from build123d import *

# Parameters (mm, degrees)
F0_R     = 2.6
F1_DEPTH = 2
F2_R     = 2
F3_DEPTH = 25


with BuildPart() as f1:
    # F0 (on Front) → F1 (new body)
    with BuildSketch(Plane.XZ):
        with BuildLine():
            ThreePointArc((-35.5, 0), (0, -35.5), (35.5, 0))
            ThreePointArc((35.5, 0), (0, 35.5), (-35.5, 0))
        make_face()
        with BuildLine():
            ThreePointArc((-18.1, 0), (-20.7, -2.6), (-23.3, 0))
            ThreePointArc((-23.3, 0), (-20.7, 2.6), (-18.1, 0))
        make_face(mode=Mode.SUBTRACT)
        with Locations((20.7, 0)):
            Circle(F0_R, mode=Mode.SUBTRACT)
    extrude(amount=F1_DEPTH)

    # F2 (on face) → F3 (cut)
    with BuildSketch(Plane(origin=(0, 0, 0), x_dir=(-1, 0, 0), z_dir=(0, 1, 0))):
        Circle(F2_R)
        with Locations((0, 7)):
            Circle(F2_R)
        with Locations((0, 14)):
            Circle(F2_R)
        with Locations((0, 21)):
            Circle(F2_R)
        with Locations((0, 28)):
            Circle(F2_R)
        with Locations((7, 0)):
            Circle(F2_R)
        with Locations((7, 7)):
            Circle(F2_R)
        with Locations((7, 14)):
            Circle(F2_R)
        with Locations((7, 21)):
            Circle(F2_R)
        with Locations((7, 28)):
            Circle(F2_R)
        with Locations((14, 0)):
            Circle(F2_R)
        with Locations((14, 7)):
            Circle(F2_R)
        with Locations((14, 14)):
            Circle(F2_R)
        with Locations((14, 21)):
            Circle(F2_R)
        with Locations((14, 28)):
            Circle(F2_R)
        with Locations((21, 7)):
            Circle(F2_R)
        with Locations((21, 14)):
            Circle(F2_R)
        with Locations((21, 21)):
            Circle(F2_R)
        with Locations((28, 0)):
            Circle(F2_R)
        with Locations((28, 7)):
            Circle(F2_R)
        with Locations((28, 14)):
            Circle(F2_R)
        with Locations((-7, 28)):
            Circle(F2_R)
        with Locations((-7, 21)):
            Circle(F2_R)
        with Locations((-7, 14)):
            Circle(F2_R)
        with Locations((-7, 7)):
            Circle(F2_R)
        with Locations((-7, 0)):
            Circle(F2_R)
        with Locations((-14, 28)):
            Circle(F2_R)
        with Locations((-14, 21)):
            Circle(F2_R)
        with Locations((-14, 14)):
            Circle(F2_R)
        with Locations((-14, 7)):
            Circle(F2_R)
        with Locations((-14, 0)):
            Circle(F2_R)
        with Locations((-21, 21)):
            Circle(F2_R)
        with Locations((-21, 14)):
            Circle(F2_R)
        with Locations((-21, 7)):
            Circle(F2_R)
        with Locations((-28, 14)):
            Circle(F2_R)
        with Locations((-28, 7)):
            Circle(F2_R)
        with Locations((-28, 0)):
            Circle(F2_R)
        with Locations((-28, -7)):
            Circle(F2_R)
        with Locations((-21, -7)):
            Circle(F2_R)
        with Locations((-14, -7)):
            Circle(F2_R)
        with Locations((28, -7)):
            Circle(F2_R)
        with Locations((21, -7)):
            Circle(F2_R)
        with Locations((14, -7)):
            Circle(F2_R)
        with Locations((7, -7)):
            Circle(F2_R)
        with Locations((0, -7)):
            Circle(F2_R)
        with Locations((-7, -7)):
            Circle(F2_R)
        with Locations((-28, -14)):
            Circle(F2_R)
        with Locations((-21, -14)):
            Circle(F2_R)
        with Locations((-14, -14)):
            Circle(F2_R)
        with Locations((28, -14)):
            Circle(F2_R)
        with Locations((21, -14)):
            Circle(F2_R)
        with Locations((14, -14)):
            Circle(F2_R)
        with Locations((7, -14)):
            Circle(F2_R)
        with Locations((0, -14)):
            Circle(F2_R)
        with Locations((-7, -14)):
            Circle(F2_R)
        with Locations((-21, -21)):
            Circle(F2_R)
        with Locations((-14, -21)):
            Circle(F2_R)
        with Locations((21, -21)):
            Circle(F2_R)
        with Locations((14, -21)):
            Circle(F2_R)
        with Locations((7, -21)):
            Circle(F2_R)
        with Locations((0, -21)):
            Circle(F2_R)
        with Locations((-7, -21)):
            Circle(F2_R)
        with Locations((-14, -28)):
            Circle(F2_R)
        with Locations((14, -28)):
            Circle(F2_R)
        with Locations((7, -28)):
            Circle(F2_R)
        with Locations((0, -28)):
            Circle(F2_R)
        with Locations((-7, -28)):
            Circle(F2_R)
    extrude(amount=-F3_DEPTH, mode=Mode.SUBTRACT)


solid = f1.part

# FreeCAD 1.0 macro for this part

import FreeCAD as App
import Part
import Sketcher
from FreeCAD import Vector
Q = App.Units.Quantity

doc = App.newDocument("Part")
params = doc.addObject("Spreadsheet::Sheet", "Params")
for row, (alias, value) in enumerate([
    ("sketch1_diameter", "71 mm"),
    ("sketch1_diameter2", "5.2 mm"),
    ("pad1_length", "2 mm"),
    ("sketch2_diameter", "4 mm"),
    ("pocket1_length", "25 mm"),
], start=1):
    params.set(f"A{row}", alias)
    params.set(f"B{row}", "=" + value)
    params.setAlias(f"B{row}", alias)

body = doc.addObject("PartDesign::Body", "Body")

sketch1 = body.newObject("Sketcher::SketchObject", "Sketch")
sketch1.AttachmentSupport = (doc.getObject("XZ_Plane"), [""])
sketch1.MapMode = "FlatFace"
sketch1.addGeometry([
    Part.Circle(Vector(0, 0, 0), Vector(0, 0, 1), 35.5),
    Part.Circle(Vector(-20.7, 0, 0), Vector(0, 0, 1), 2.6),
    Part.Circle(Vector(20.7, 0, 0), Vector(0, 0, 1), 2.6),
], False)
sketch1.addConstraint([
    Sketcher.Constraint("Coincident", 0, 3, -1, 1),
    Sketcher.Constraint("Equal", 1, 2),
    Sketcher.Constraint("Symmetric", 1, 3, 2, 3, -1, 1),
    Sketcher.Constraint("PointOnObject", 1, 3, -1),
    Sketcher.Constraint("Diameter", 0, Q("71 mm")),
    Sketcher.Constraint("Diameter", 1, Q("5.2 mm")),
    Sketcher.Constraint("DistanceX", 1, 3, -1, 1, Q("20.7 mm")),
])
sketch1.setExpression("Constraints[4]", "Params.sketch1_diameter")
sketch1.setExpression("Constraints[5]", "Params.sketch1_diameter2")
pad1 = body.newObject("PartDesign::Pad", "Pad")
pad1.Profile = sketch1
pad1.setExpression("Length", "Params.pad1_length")

sketch2 = body.newObject("Sketcher::SketchObject", "Sketch001")
sketch2.AttachmentSupport = (doc.getObject("XZ_Plane"), [""])
sketch2.MapMode = "FlatFace"
sketch2.addGeometry([
    Part.Circle(Vector(0, 0, 0), Vector(0, 0, 1), 2),
    Part.Circle(Vector(0, 7, 0), Vector(0, 0, 1), 2),
    Part.Circle(Vector(0, 14, 0), Vector(0, 0, 1), 2),
    Part.Circle(Vector(0, 21, 0), Vector(0, 0, 1), 2),
    Part.Circle(Vector(0, 28, 0), Vector(0, 0, 1), 2),
    Part.Circle(Vector(-7, 0, 0), Vector(0, 0, 1), 2),
    Part.Circle(Vector(-7, 7, 0), Vector(0, 0, 1), 2),
    Part.Circle(Vector(-7, 14, 0), Vector(0, 0, 1), 2),
    Part.Circle(Vector(-7, 21, 0), Vector(0, 0, 1), 2),
    Part.Circle(Vector(-7, 28, 0), Vector(0, 0, 1), 2),
    Part.Circle(Vector(-14, 0, 0), Vector(0, 0, 1), 2),
    Part.Circle(Vector(-14, 7, 0), Vector(0, 0, 1), 2),
    Part.Circle(Vector(-14, 14, 0), Vector(0, 0, 1), 2),
    Part.Circle(Vector(-14, 21, 0), Vector(0, 0, 1), 2),
    Part.Circle(Vector(-14, 28, 0), Vector(0, 0, 1), 2),
    Part.Circle(Vector(-21, 7, 0), Vector(0, 0, 1), 2),
    Part.Circle(Vector(-21, 14, 0), Vector(0, 0, 1), 2),
    Part.Circle(Vector(-21, 21, 0), Vector(0, 0, 1), 2),
    Part.Circle(Vector(-28, 0, 0), Vector(0, 0, 1), 2),
    Part.Circle(Vector(-28, 7, 0), Vector(0, 0, 1), 2),
    Part.Circle(Vector(-28, 14, 0), Vector(0, 0, 1), 2),
    Part.Circle(Vector(7, 28, 0), Vector(0, 0, 1), 2),
    Part.Circle(Vector(7, 21, 0), Vector(0, 0, 1), 2),
    Part.Circle(Vector(7, 14, 0), Vector(0, 0, 1), 2),
    Part.Circle(Vector(7, 7, 0), Vector(0, 0, 1), 2),
    Part.Circle(Vector(7, 0, 0), Vector(0, 0, 1), 2),
    Part.Circle(Vector(14, 28, 0), Vector(0, 0, 1), 2),
    Part.Circle(Vector(14, 21, 0), Vector(0, 0, 1), 2),
    Part.Circle(Vector(14, 14, 0), Vector(0, 0, 1), 2),
    Part.Circle(Vector(14, 7, 0), Vector(0, 0, 1), 2),
    Part.Circle(Vector(14, 0, 0), Vector(0, 0, 1), 2),
    Part.Circle(Vector(21, 21, 0), Vector(0, 0, 1), 2),
    Part.Circle(Vector(21, 14, 0), Vector(0, 0, 1), 2),
    Part.Circle(Vector(21, 7, 0), Vector(0, 0, 1), 2),
    Part.Circle(Vector(28, 14, 0), Vector(0, 0, 1), 2),
    Part.Circle(Vector(28, 7, 0), Vector(0, 0, 1), 2),
    Part.Circle(Vector(28, 0, 0), Vector(0, 0, 1), 2),
    Part.Circle(Vector(28, -7, 0), Vector(0, 0, 1), 2),
    Part.Circle(Vector(21, -7, 0), Vector(0, 0, 1), 2),
    Part.Circle(Vector(14, -7, 0), Vector(0, 0, 1), 2),
    Part.Circle(Vector(-28, -7, 0), Vector(0, 0, 1), 2),
    Part.Circle(Vector(-21, -7, 0), Vector(0, 0, 1), 2),
    Part.Circle(Vector(-14, -7, 0), Vector(0, 0, 1), 2),
    Part.Circle(Vector(-7, -7, 0), Vector(0, 0, 1), 2),
    Part.Circle(Vector(0, -7, 0), Vector(0, 0, 1), 2),
    Part.Circle(Vector(7, -7, 0), Vector(0, 0, 1), 2),
    Part.Circle(Vector(28, -14, 0), Vector(0, 0, 1), 2),
    Part.Circle(Vector(21, -14, 0), Vector(0, 0, 1), 2),
    Part.Circle(Vector(14, -14, 0), Vector(0, 0, 1), 2),
    Part.Circle(Vector(-28, -14, 0), Vector(0, 0, 1), 2),
    Part.Circle(Vector(-21, -14, 0), Vector(0, 0, 1), 2),
    Part.Circle(Vector(-14, -14, 0), Vector(0, 0, 1), 2),
    Part.Circle(Vector(-7, -14, 0), Vector(0, 0, 1), 2),
    Part.Circle(Vector(0, -14, 0), Vector(0, 0, 1), 2),
    Part.Circle(Vector(7, -14, 0), Vector(0, 0, 1), 2),
    Part.Circle(Vector(21, -21, 0), Vector(0, 0, 1), 2),
    Part.Circle(Vector(14, -21, 0), Vector(0, 0, 1), 2),
    Part.Circle(Vector(-21, -21, 0), Vector(0, 0, 1), 2),
    Part.Circle(Vector(-14, -21, 0), Vector(0, 0, 1), 2),
    Part.Circle(Vector(-7, -21, 0), Vector(0, 0, 1), 2),
    Part.Circle(Vector(0, -21, 0), Vector(0, 0, 1), 2),
    Part.Circle(Vector(7, -21, 0), Vector(0, 0, 1), 2),
    Part.Circle(Vector(14, -28, 0), Vector(0, 0, 1), 2),
    Part.Circle(Vector(-14, -28, 0), Vector(0, 0, 1), 2),
    Part.Circle(Vector(-7, -28, 0), Vector(0, 0, 1), 2),
    Part.Circle(Vector(0, -28, 0), Vector(0, 0, 1), 2),
    Part.Circle(Vector(7, -28, 0), Vector(0, 0, 1), 2),
], False)
sketch2.addConstraint([
    Sketcher.Constraint("Coincident", 0, 3, -1, 1),
    Sketcher.Constraint("Equal", 0, 1),
    Sketcher.Constraint("Equal", 1, 2),
    Sketcher.Constraint("Equal", 2, 3),
    Sketcher.Constraint("Equal", 3, 4),
    Sketcher.Constraint("Equal", 4, 5),
    Sketcher.Constraint("Equal", 5, 6),
    Sketcher.Constraint("Equal", 6, 7),
    Sketcher.Constraint("Equal", 7, 8),
    Sketcher.Constraint("Equal", 8, 9),
    Sketcher.Constraint("Equal", 9, 10),
    Sketcher.Constraint("Equal", 10, 11),
    Sketcher.Constraint("Equal", 11, 12),
    Sketcher.Constraint("Equal", 12, 13),
    Sketcher.Constraint("Equal", 13, 14),
    Sketcher.Constraint("Equal", 14, 15),
    Sketcher.Constraint("Equal", 15, 16),
    Sketcher.Constraint("Equal", 16, 17),
    Sketcher.Constraint("Equal", 17, 18),
    Sketcher.Constraint("Equal", 18, 19),
    Sketcher.Constraint("Equal", 19, 20),
    Sketcher.Constraint("Equal", 20, 21),
    Sketcher.Constraint("Equal", 21, 22),
    Sketcher.Constraint("Equal", 22, 23),
    Sketcher.Constraint("Equal", 23, 24),
    Sketcher.Constraint("Equal", 24, 25),
    Sketcher.Constraint("Equal", 25, 26),
    Sketcher.Constraint("Equal", 26, 27),
    Sketcher.Constraint("Equal", 27, 28),
    Sketcher.Constraint("Equal", 28, 29),
    Sketcher.Constraint("Equal", 29, 30),
    Sketcher.Constraint("Equal", 30, 31),
    Sketcher.Constraint("Equal", 31, 32),
    Sketcher.Constraint("Equal", 32, 33),
    Sketcher.Constraint("Equal", 33, 34),
    Sketcher.Constraint("Equal", 34, 35),
    Sketcher.Constraint("Equal", 35, 36),
    Sketcher.Constraint("Equal", 36, 37),
    Sketcher.Constraint("Equal", 37, 38),
    Sketcher.Constraint("Equal", 38, 39),
    Sketcher.Constraint("Equal", 39, 40),
    Sketcher.Constraint("Equal", 40, 41),
    Sketcher.Constraint("Equal", 41, 42),
    Sketcher.Constraint("Equal", 42, 43),
    Sketcher.Constraint("Equal", 43, 44),
    Sketcher.Constraint("Equal", 44, 45),
    Sketcher.Constraint("Equal", 45, 46),
    Sketcher.Constraint("Equal", 46, 47),
    Sketcher.Constraint("Equal", 47, 48),
    Sketcher.Constraint("Equal", 48, 49),
    Sketcher.Constraint("Equal", 49, 50),
    Sketcher.Constraint("Equal", 50, 51),
    Sketcher.Constraint("Equal", 51, 52),
    Sketcher.Constraint("Equal", 52, 53),
    Sketcher.Constraint("Equal", 53, 54),
    Sketcher.Constraint("Equal", 54, 55),
    Sketcher.Constraint("Equal", 55, 56),
    Sketcher.Constraint("Equal", 56, 57),
    Sketcher.Constraint("Equal", 57, 58),
    Sketcher.Constraint("Equal", 58, 59),
    Sketcher.Constraint("Equal", 59, 60),
    Sketcher.Constraint("Equal", 60, 61),
    Sketcher.Constraint("Equal", 61, 62),
    Sketcher.Constraint("Equal", 62, 63),
    Sketcher.Constraint("Equal", 63, 64),
    Sketcher.Constraint("Equal", 64, 65),
    Sketcher.Constraint("Equal", 65, 66),
    Sketcher.Constraint("Symmetric", 5, 3, 25, 3, -1, 1),
    Sketcher.Constraint("Symmetric", 10, 3, 30, 3, -1, 1),
    Sketcher.Constraint("Symmetric", 18, 3, 36, 3, -1, 1),
    Sketcher.Constraint("Symmetric", 19, 3, 37, 3, -1, 1),
    Sketcher.Constraint("Symmetric", 15, 3, 38, 3, -1, 1),
    Sketcher.Constraint("Symmetric", 11, 3, 39, 3, -1, 1),
    Sketcher.Constraint("Symmetric", 35, 3, 40, 3, -1, 1),
    Sketcher.Constraint("Symmetric", 33, 3, 41, 3, -1, 1),
    Sketcher.Constraint("Symmetric", 29, 3, 42, 3, -1, 1),
    Sketcher.Constraint("Symmetric", 24, 3, 43, 3, -1, 1),
    Sketcher.Constraint("Symmetric", 1, 3, 44, 3, -1, 1),
    Sketcher.Constraint("Symmetric", 6, 3, 45, 3, -1, 1),
    Sketcher.Constraint("Symmetric", 20, 3, 46, 3, -1, 1),
    Sketcher.Constraint("Symmetric", 16, 3, 47, 3, -1, 1),
    Sketcher.Constraint("Symmetric", 12, 3, 48, 3, -1, 1),
    Sketcher.Constraint("Symmetric", 34, 3, 49, 3, -1, 1),
    Sketcher.Constraint("Symmetric", 32, 3, 50, 3, -1, 1),
    Sketcher.Constraint("Symmetric", 28, 3, 51, 3, -1, 1),
    Sketcher.Constraint("Symmetric", 23, 3, 52, 3, -1, 1),
    Sketcher.Constraint("Symmetric", 2, 3, 53, 3, -1, 1),
    Sketcher.Constraint("Symmetric", 7, 3, 54, 3, -1, 1),
    Sketcher.Constraint("Symmetric", 17, 3, 55, 3, -1, 1),
    Sketcher.Constraint("Symmetric", 13, 3, 56, 3, -1, 1),
    Sketcher.Constraint("Symmetric", 31, 3, 57, 3, -1, 1),
    Sketcher.Constraint("Symmetric", 27, 3, 58, 3, -1, 1),
    Sketcher.Constraint("Symmetric", 22, 3, 59, 3, -1, 1),
    Sketcher.Constraint("Symmetric", 3, 3, 60, 3, -1, 1),
    Sketcher.Constraint("Symmetric", 8, 3, 61, 3, -1, 1),
    Sketcher.Constraint("Symmetric", 14, 3, 62, 3, -1, 1),
    Sketcher.Constraint("Symmetric", 26, 3, 63, 3, -1, 1),
    Sketcher.Constraint("Symmetric", 21, 3, 64, 3, -1, 1),
    Sketcher.Constraint("Symmetric", 4, 3, 65, 3, -1, 1),
    Sketcher.Constraint("Symmetric", 9, 3, 66, 3, -1, 1),
    Sketcher.Constraint("Symmetric", 9, 3, 21, 3, -2),
    Sketcher.Constraint("Symmetric", 8, 3, 22, 3, -2),
    Sketcher.Constraint("Symmetric", 7, 3, 23, 3, -2),
    Sketcher.Constraint("Symmetric", 6, 3, 24, 3, -2),
    Sketcher.Constraint("Symmetric", 14, 3, 26, 3, -2),
    Sketcher.Constraint("Symmetric", 13, 3, 27, 3, -2),
    Sketcher.Constraint("Symmetric", 12, 3, 28, 3, -2),
    Sketcher.Constraint("Symmetric", 11, 3, 29, 3, -2),
    Sketcher.Constraint("Symmetric", 17, 3, 31, 3, -2),
    Sketcher.Constraint("Symmetric", 16, 3, 32, 3, -2),
    Sketcher.Constraint("Symmetric", 15, 3, 33, 3, -2),
    Sketcher.Constraint("Symmetric", 20, 3, 34, 3, -2),
    Sketcher.Constraint("Symmetric", 19, 3, 35, 3, -2),
    Sketcher.Constraint("PointOnObject", 1, 3, -2),
    Sketcher.Constraint("PointOnObject", 2, 3, -2),
    Sketcher.Constraint("PointOnObject", 3, 3, -2),
    Sketcher.Constraint("PointOnObject", 4, 3, -2),
    Sketcher.Constraint("PointOnObject", 5, 3, -1),
    Sketcher.Constraint("PointOnObject", 10, 3, -1),
    Sketcher.Constraint("PointOnObject", 18, 3, -1),
    Sketcher.Constraint("Horizontal", 1, 3, 6, 3),
    Sketcher.Constraint("Horizontal", 2, 3, 7, 3),
    Sketcher.Constraint("Horizontal", 3, 3, 8, 3),
    Sketcher.Constraint("Horizontal", 4, 3, 9, 3),
    Sketcher.Constraint("Horizontal", 6, 3, 11, 3),
    Sketcher.Constraint("Horizontal", 7, 3, 12, 3),
    Sketcher.Constraint("Horizontal", 8, 3, 13, 3),
    Sketcher.Constraint("Horizontal", 9, 3, 14, 3),
    Sketcher.Constraint("Horizontal", 11, 3, 15, 3),
    Sketcher.Constraint("Horizontal", 12, 3, 16, 3),
    Sketcher.Constraint("Horizontal", 13, 3, 17, 3),
    Sketcher.Constraint("Horizontal", 15, 3, 19, 3),
    Sketcher.Constraint("Horizontal", 16, 3, 20, 3),
    Sketcher.Constraint("Vertical", 5, 3, 6, 3),
    Sketcher.Constraint("Vertical", 6, 3, 7, 3),
    Sketcher.Constraint("Vertical", 7, 3, 8, 3),
    Sketcher.Constraint("Vertical", 8, 3, 9, 3),
    Sketcher.Constraint("Vertical", 10, 3, 11, 3),
    Sketcher.Constraint("Vertical", 11, 3, 12, 3),
    Sketcher.Constraint("Vertical", 12, 3, 13, 3),
    Sketcher.Constraint("Vertical", 13, 3, 14, 3),
    Sketcher.Constraint("Vertical", 15, 3, 16, 3),
    Sketcher.Constraint("Vertical", 16, 3, 17, 3),
    Sketcher.Constraint("Vertical", 18, 3, 19, 3),
    Sketcher.Constraint("Vertical", 19, 3, 20, 3),
    Sketcher.Constraint("Diameter", 0, Q("4 mm")),
    Sketcher.Constraint("DistanceY", -1, 1, 1, 3, Q("7 mm")),
    Sketcher.Constraint("DistanceY", -1, 1, 2, 3, Q("14 mm")),
    Sketcher.Constraint("DistanceY", -1, 1, 3, 3, Q("21 mm")),
    Sketcher.Constraint("DistanceY", -1, 1, 4, 3, Q("28 mm")),
    Sketcher.Constraint("DistanceX", 5, 3, -1, 1, Q("7 mm")),
    Sketcher.Constraint("DistanceX", 10, 3, -1, 1, Q("14 mm")),
    Sketcher.Constraint("DistanceX", 15, 3, -1, 1, Q("21 mm")),
    Sketcher.Constraint("DistanceX", 18, 3, -1, 1, Q("28 mm")),
])
sketch2.setExpression("Constraints[145]", "Params.sketch2_diameter")
pocket1 = body.newObject("PartDesign::Pocket", "Pocket")
pocket1.Profile = sketch2
pocket1.setExpression("Length", "Params.pocket1_length")
pocket1.Reversed = True

doc.recompute()
